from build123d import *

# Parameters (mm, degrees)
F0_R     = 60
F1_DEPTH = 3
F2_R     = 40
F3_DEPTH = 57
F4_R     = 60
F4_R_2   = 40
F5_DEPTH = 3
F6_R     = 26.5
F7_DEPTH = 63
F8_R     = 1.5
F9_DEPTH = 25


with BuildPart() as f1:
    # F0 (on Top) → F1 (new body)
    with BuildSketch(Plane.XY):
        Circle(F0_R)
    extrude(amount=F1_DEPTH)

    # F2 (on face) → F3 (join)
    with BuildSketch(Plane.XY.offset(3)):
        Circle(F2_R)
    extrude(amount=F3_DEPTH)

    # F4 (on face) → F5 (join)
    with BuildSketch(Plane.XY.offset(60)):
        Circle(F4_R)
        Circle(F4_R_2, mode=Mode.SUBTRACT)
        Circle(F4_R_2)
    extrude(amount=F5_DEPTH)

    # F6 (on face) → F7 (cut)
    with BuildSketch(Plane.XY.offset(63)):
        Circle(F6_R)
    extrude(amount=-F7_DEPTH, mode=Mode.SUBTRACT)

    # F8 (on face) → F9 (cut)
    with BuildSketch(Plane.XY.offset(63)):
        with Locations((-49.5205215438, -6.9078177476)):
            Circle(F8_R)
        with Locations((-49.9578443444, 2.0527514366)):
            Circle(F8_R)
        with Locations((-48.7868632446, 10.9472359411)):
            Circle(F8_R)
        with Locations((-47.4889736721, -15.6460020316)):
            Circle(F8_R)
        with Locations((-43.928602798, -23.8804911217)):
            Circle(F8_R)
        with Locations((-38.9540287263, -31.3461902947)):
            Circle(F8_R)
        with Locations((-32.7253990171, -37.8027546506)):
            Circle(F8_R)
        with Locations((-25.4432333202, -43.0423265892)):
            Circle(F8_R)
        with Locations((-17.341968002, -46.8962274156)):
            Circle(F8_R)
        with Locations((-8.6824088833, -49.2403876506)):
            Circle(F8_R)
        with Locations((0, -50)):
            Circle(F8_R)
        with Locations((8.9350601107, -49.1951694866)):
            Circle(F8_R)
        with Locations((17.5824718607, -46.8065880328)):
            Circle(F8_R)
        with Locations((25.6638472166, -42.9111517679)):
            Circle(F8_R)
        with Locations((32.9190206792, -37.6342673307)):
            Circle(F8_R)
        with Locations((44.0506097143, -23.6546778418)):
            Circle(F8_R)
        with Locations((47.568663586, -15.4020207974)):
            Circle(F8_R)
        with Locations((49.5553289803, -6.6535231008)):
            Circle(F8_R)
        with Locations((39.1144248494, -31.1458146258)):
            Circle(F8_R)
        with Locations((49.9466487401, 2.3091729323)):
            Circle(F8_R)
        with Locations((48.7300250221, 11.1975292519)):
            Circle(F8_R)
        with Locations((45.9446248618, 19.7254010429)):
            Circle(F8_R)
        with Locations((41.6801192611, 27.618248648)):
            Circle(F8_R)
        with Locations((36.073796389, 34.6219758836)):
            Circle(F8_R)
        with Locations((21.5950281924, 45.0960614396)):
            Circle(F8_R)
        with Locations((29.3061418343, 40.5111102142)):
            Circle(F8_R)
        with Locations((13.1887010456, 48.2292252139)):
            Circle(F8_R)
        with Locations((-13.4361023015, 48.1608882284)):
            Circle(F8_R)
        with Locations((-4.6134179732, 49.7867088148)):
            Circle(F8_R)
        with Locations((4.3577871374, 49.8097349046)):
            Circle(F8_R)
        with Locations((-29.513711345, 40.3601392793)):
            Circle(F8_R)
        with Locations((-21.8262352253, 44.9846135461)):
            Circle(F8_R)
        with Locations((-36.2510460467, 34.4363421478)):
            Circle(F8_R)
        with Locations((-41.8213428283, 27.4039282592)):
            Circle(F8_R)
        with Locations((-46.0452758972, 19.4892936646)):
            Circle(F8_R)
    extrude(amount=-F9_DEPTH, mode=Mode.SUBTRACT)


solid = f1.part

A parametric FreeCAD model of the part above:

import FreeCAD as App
import Part
import Sketcher

V = App.Vector

doc = App.newDocument("Part")
body = doc.addObject("PartDesign::Body", "Body")

# Sketch on XY plane
sketch1 = doc.addObject("Sketcher::SketchObject", "Sketch")
body.addObject(sketch1)
sketch1.AttachmentSupport = (doc.XY_Plane, [""])
sketch1.MapMode = "FlatFace"
sketch1.addGeometry(Part.Circle(V(0, 0, 0), V(0, 0, 1), 60), False)
sketch1.addConstraint(Sketcher.Constraint("Coincident", 0, 3, -1, 1))
sketch1.addConstraint(Sketcher.Constraint("Diameter", 0, 120.0))
pad1 = doc.addObject("PartDesign::Pad", "Pad")
body.addObject(pad1)
pad1.Profile = sketch1
pad1.Length = 3

# Sketch on XY plane
sketch2 = doc.addObject("Sketcher::SketchObject", "Sketch001")
body.addObject(sketch2)
sketch2.AttachmentSupport = (doc.XY_Plane, [""])
sketch2.MapMode = "FlatFace"
sketch2.AttachmentOffset = App.Placement(V(0, 0, 3), App.Rotation())
sketch2.addGeometry(Part.Circle(V(0, 0, 0), V(0, 0, 1), 40), False)
sketch2.addConstraint(Sketcher.Constraint("Coincident", 0, 3, -1, 1))
sketch2.addConstraint(Sketcher.Constraint("Diameter", 0, 80.0))
pad2 = doc.addObject("PartDesign::Pad", "Pad001")
body.addObject(pad2)
pad2.Profile = sketch2
pad2.Length = 57

# Sketch on XY plane
sketch3 = doc.addObject("Sketcher::SketchObject", "Sketch002")
body.addObject(sketch3)
sketch3.AttachmentSupport = (doc.XY_Plane, [""])
sketch3.MapMode = "FlatFace"
sketch3.AttachmentOffset = App.Placement(V(0, 0, 60), App.Rotation())
sketch3.addGeometry(Part.Circle(V(0, 0, 0), V(0, 0, 1), 60), False)
sketch3.addConstraint(Sketcher.Constraint("Coincident", 0, 3, -1, 1))
sketch3.addConstraint(Sketcher.Constraint("Diameter", 0, 120.0))
pad3 = doc.addObject("PartDesign::Pad", "Pad002")
body.addObject(pad3)
pad3.Profile = sketch3
pad3.Length = 3

# Sketch on XY plane
sketch4 = doc.addObject("Sketcher::SketchObject", "Sketch003")
body.addObject(sketch4)
sketch4.AttachmentSupport = (doc.XY_Plane, [""])
sketch4.MapMode = "FlatFace"
sketch4.AttachmentOffset = App.Placement(V(0, 0, 63), App.Rotation())
sketch4.addGeometry(Part.Circle(V(0, 0, 0), V(0, 0, 1), 26), False)
sketch4.addConstraint(Sketcher.Constraint("Coincident", 0, 3, -1, 1))
sketch4.addConstraint(Sketcher.Constraint("Diameter", 0, 53.0))
pocket1 = doc.addObject("PartDesign::Pocket", "Pocket")
body.addObject(pocket1)
pocket1.Profile = sketch4
pocket1.Length = 63

# Sketch on XY plane
sketch5 = doc.addObject("Sketcher::SketchObject", "Sketch004")
body.addObject(sketch5)
sketch5.AttachmentSupport = (doc.XY_Plane, [""])
sketch5.MapMode = "FlatFace"
sketch5.AttachmentOffset = App.Placement(V(0, 0, 63), App.Rotation())
sketch5.addGeometry(Part.Circle(V(-49.5, -6.9, 0), V(0, 0, 1), 1.5), False)
sketch5.addGeometry(Part.Circle(V(-50, 2.1, 0), V(0, 0, 1), 1.5), False)
sketch5.addGeometry(Part.Circle(V(-48.8, 10.9, 0), V(0, 0, 1), 1.5), False)
sketch5.addGeometry(Part.Circle(V(-47.5, -15.6, 0), V(0, 0, 1), 1.5), False)
sketch5.addGeometry(Part.Circle(V(-43.9, -23.9, 0), V(0, 0, 1), 1.5), False)
sketch5.addGeometry(Part.Circle(V(-39, -31.3, 0), V(0, 0, 1), 1.5), False)
sketch5.addGeometry(Part.Circle(V(-32.7, -37.8, 0), V(0, 0, 1), 1.5), False)
sketch5.addGeometry(Part.Circle(V(-25.4, -43, 0), V(0, 0, 1), 1.5), False)
sketch5.addGeometry(Part.Circle(V(-17.3, -46.9, 0), V(0, 0, 1), 1.5), False)
sketch5.addGeometry(Part.Circle(V(-8.7, -49.2, 0), V(0, 0, 1), 1.5), False)
sketch5.addGeometry(Part.Circle(V(0, -50, 0), V(0, 0, 1), 1.5), False)
sketch5.addGeometry(Part.Circle(V(8.9, -49.2, 0), V(0, 0, 1), 1.5), False)
sketch5.addGeometry(Part.Circle(V(17.6, -46.8, 0), V(0, 0, 1), 1.5), False)
sketch5.addGeometry(Part.Circle(V(25.7, -42.9, 0), V(0, 0, 1), 1.5), False)
sketch5.addGeometry(Part.Circle(V(32.9, -37.6, 0), V(0, 0, 1), 1.5), False)
sketch5.addGeometry(Part.Circle(V(44.1, -23.7, 0), V(0, 0, 1), 1.5), False)
sketch5.addGeometry(Part.Circle(V(47.6, -15.4, 0), V(0, 0, 1), 1.5), False)
sketch5.addGeometry(Part.Circle(V(49.6, -6.7, 0), V(0, 0, 1), 1.5), False)
sketch5.addGeometry(Part.Circle(V(39.1, -31.1, 0), V(0, 0, 1), 1.5), False)
sketch5.addGeometry(Part.Circle(V(49.9, 2.3, 0), V(0, 0, 1), 1.5), False)
sketch5.addGeometry(Part.Circle(V(48.7, 11.2, 0), V(0, 0, 1), 1.5), False)
sketch5.addGeometry(Part.Circle(V(45.9, 19.7, 0), V(0, 0, 1), 1.5), False)
sketch5.addGeometry(Part.Circle(V(41.7, 27.6, 0), V(0, 0, 1), 1.5), False)
sketch5.addGeometry(Part.Circle(V(36.1, 34.6, 0), V(0, 0, 1), 1.5), False)
sketch5.addGeometry(Part.Circle(V(21.6, 45.1, 0), V(0, 0, 1), 1.5), False)
sketch5.addGeometry(Part.Circle(V(29.3, 40.5, 0), V(0, 0, 1), 1.5), False)
sketch5.addGeometry(Part.Circle(V(13.2, 48.2, 0), V(0, 0, 1), 1.5), False)
sketch5.addGeometry(Part.Circle(V(-13.4, 48.2, 0), V(0, 0, 1), 1.5), False)
sketch5.addGeometry(Part.Circle(V(-4.6, 49.8, 0), V(0, 0, 1), 1.5), False)
sketch5.addGeometry(Part.Circle(V(4.4, 49.8, 0), V(0, 0, 1), 1.5), False)
sketch5.addGeometry(Part.Circle(V(-29.5, 40.4, 0), V(0, 0, 1), 1.5), False)
sketch5.addGeometry(Part.Circle(V(-21.8, 45, 0), V(0, 0, 1), 1.5), False)
sketch5.addGeometry(Part.Circle(V(-36.3, 34.4, 0), V(0, 0, 1), 1.5), False)
sketch5.addGeometry(Part.Circle(V(-41.8, 27.4, 0), V(0, 0, 1), 1.5), False)
sketch5.addGeometry(Part.Circle(V(-46, 19.5, 0), V(0, 0, 1), 1.5), False)
sketch5.addConstraint(Sketcher.Constraint("Equal", 0, 1))
sketch5.addConstraint(Sketcher.Constraint("Equal", 1, 2))
sketch5.addConstraint(Sketcher.Constraint("Equal", 2, 3))
sketch5.addConstraint(Sketcher.Constraint("Equal", 3, 4))
sketch5.addConstraint(Sketcher.Constraint("Equal", 4, 5))
sketch5.addConstraint(Sketcher.Constraint("Equal", 5, 6))
sketch5.addConstraint(Sketcher.Constraint("Equal", 6, 7))
sketch5.addConstraint(Sketcher.Constraint("Equal", 7, 8))
sketch5.addConstraint(Sketcher.Constraint("Equal", 8, 9))
sketch5.addConstraint(Sketcher.Constraint("Equal", 9, 10))
sketch5.addConstraint(Sketcher.Constraint("Equal", 10, 11))
sketch5.addConstraint(Sketcher.Constraint("Equal", 11, 12))
sketch5.addConstraint(Sketcher.Constraint("Equal", 12, 13))
sketch5.addConstraint(Sketcher.Constraint("Equal", 13, 14))
sketch5.addConstraint(Sketcher.Constraint("Equal", 14, 15))
sketch5.addConstraint(Sketcher.Constraint("Equal", 15, 16))
sketch5.addConstraint(Sketcher.Constraint("Equal", 16, 17))
sketch5.addConstraint(Sketcher.Constraint("Equal", 17, 18))
sketch5.addConstraint(Sketcher.Constraint("Equal", 18, 19))
sketch5.addConstraint(Sketcher.Constraint("Equal", 19, 20))
sketch5.addConstraint(Sketcher.Constraint("Equal", 20, 21))
sketch5.addConstraint(Sketcher.Constraint("Equal", 21, 22))
sketch5.addConstraint(Sketcher.Constraint("Equal", 22, 23))
sketch5.addConstraint(Sketcher.Constraint("Equal", 23, 24))
sketch5.addConstraint(Sketcher.Constraint("Equal", 24, 25))
sketch5.addConstraint(Sketcher.Constraint("Equal", 25, 26))
sketch5.addConstraint(Sketcher.Constraint("Equal", 26, 27))
sketch5.addConstraint(Sketcher.Constraint("Equal", 27, 28))
sketch5.addConstraint(Sketcher.Constraint("Equal", 28, 29))
sketch5.addConstraint(Sketcher.Constraint("Equal", 29, 30))
sketch5.addConstraint(Sketcher.Constraint("Equal", 30, 31))
sketch5.addConstraint(Sketcher.Constraint("Equal", 31, 32))
sketch5.addConstraint(Sketcher.Constraint("Equal", 32, 33))
sketch5.addConstraint(Sketcher.Constraint("Equal", 33, 34))
sketch5.addConstraint(Sketcher.Constraint("PointOnObject", 10, 3, -2))
sketch5.addConstraint(Sketcher.Constraint("Diameter", 0, 3.0))
sketch5.addConstraint(Sketcher.Constraint("DistanceY", 10, 3, -1, 1, 50.0))
sketch5.addConstraint(Sketcher.Constraint("DistanceX", 6, 3, -1, 1, 32.725399))
sketch5.addConstraint(Sketcher.Constraint("DistanceY", -1, 1, 21, 3, 19.725401))
sketch5.addConstraint(Sketcher.Constraint("DistanceX", -1, 1, 26, 3, 13.188701))
sketch5.addConstraint(Sketcher.Constraint("DistanceY", 5, 3, 4, 3, 7.465699))
sketch5.addConstraint(Sketcher.Constraint("DistanceY", 8, 3, 7, 3, 3.853901))
sketch5.addConstraint(Sketcher.Constraint("DistanceY", 9, 3, 12, 3, 2.4338))
sketch5.addConstraint(Sketcher.Constraint("DistanceX", 18, 3, 20, 3, 9.6156))
sketch5.addConstraint(Sketcher.Constraint("DistanceX", 21, 3, 20, 3, 2.7854))
sketch5.addConstraint(Sketcher.Constraint("DistanceY", 17, 3, 23, 3, 41.275499))
sketch5.addConstraint(Sketcher.Constraint("DistanceX", 27, 3, 23, 3, 49.509899))
sketch5.addConstraint(Sketcher.Constraint("DistanceY", 25, 3, 28, 3, 9.275599))
sketch5.addConstraint(Sketcher.Constraint("DistanceX", 30, 3, 29, 3, 33.871498))
sketch5.addConstraint(Sketcher.Constraint("DistanceX", 1, 3, 32, 3, 13.706798))
sketch5.addConstraint(Sketcher.Constraint("DistanceX", 1, 3, 33, 3, 8.136502))
sketch5.addConstraint(Sketcher.Constraint("DistanceX", 0, 3, -1, 1, 49.520522))
sketch5.addConstraint(Sketcher.Constraint("DistanceY", -1, 1, 1, 3, 2.052751))
sketch5.addConstraint(Sketcher.Constraint("DistanceY", 4, 3, -1, 1, 23.880491))
sketch5.addConstraint(Sketcher.Constraint("DistanceX", 5, 3, -1, 1, 38.954029))
sketch5.addConstraint(Sketcher.Constraint("DistanceX", 8, 3, -1, 1, 17.341968))
sketch5.addConstraint(Sketcher.Constraint("DistanceX", 9, 3, -1, 1, 8.682409))
sketch5.addConstraint(Sketcher.Constraint("DistanceX", -1, 1, 11, 3, 8.93506))
sketch5.addConstraint(Sketcher.Constraint("DistanceY", 11, 3, -1, 1, 49.195169))
sketch5.addConstraint(Sketcher.Constraint("DistanceX", -1, 1, 12, 3, 17.582472))
sketch5.addConstraint(Sketcher.Constraint("DistanceY", 12, 3, -1, 1, 46.806588))
sketch5.addConstraint(Sketcher.Constraint("DistanceY", 13, 3, -1, 1, 42.911152))
sketch5.addConstraint(Sketcher.Constraint("DistanceX", -1, 1, 14, 3, 32.919021))
sketch5.addConstraint(Sketcher.Constraint("DistanceX", -1, 1, 15, 3, 44.05061))
sketch5.addConstraint(Sketcher.Constraint("DistanceY", 16, 3, -1, 1, 15.402021))
sketch5.addConstraint(Sketcher.Constraint("DistanceX", -1, 1, 17, 3, 49.555329))
sketch5.addConstraint(Sketcher.Constraint("DistanceX", -1, 1, 19, 3, 49.946649))
sketch5.addConstraint(Sketcher.Constraint("DistanceY", -1, 1, 20, 3, 11.197529))
sketch5.addConstraint(Sketcher.Constraint("DistanceX", -1, 1, 22, 3, 41.680119))
sketch5.addConstraint(Sketcher.Constraint("DistanceY", -1, 1, 22, 3, 27.618249))
sketch5.addConstraint(Sketcher.Constraint("DistanceX", -1, 1, 24, 3, 21.595028))
sketch5.addConstraint(Sketcher.Constraint("DistanceY", -1, 1, 24, 3, 45.096061))
sketch5.addConstraint(Sketcher.Constraint("DistanceX", -1, 1, 25, 3, 29.306142))
sketch5.addConstraint(Sketcher.Constraint("DistanceY", -1, 1, 25, 3, 40.51111))
sketch5.addConstraint(Sketcher.Constraint("DistanceY", -1, 1, 27, 3, 48.160888))
sketch5.addConstraint(Sketcher.Constraint("DistanceX", 30, 3, -1, 1, 29.513711))
sketch5.addConstraint(Sketcher.Constraint("DistanceY", -1, 1, 30, 3, 40.360139))
sketch5.addConstraint(Sketcher.Constraint("DistanceY", -1, 1, 33, 3, 27.403928))
sketch5.addConstraint(Sketcher.Constraint("DistanceY", 0, 3, 1, 3, 8.960569))
sketch5.addConstraint(Sketcher.Constraint("DistanceX", 1, 3, 2, 3, 1.170981))
sketch5.addConstraint(Sketcher.Constraint("DistanceX", 0, 3, 2, 3, 0.733658))
sketch5.addConstraint(Sketcher.Constraint("DistanceX", 1, 3, 3, 3, 2.468871))
sketch5.addConstraint(Sketcher.Constraint("DistanceX", 3, 3, 4, 3, 3.560371))
sketch5.addConstraint(Sketcher.Constraint("DistanceY", 4, 3, 3, 3, 8.234489))
sketch5.addConstraint(Sketcher.Constraint("DistanceY", 7, 3, 6, 3, 5.239572))
sketch5.addConstraint(Sketcher.Constraint("DistanceX", 4, 3, 7, 3, 18.485369))
sketch5.addConstraint(Sketcher.Constraint("DistanceY", 7, 3, 0, 3, 36.134509))
sketch5.addConstraint(Sketcher.Constraint("DistanceY", 12, 3, 14, 3, 9.172321))
sketch5.addConstraint(Sketcher.Constraint("DistanceY", 14, 3, 15, 3, 13.979589))
sketch5.addConstraint(Sketcher.Constraint("DistanceX", 12, 3, 16, 3, 29.986192))
sketch5.addConstraint(Sketcher.Constraint("DistanceX", 13, 3, 17, 3, 23.891482))
sketch5.addConstraint(Sketcher.Constraint("DistanceY", 13, 3, 17, 3, 36.257629))
sketch5.addConstraint(Sketcher.Constraint("DistanceX", 18, 3, 16, 3, 8.454239))
sketch5.addConstraint(Sketcher.Constraint("DistanceY", 15, 3, 19, 3, 25.963851))
sketch5.addConstraint(Sketcher.Constraint("DistanceX", 23, 3, 21, 3, 9.870828))
sketch5.addConstraint(Sketcher.Constraint("DistanceY", 23, 3, 26, 3, 13.607249))
sketch5.addConstraint(Sketcher.Constraint("DistanceX", 28, 3, 26, 3, 17.802119))
sketch5.addConstraint(Sketcher.Constraint("DistanceY", 26, 3, 29, 3, 1.58051))
sketch5.addConstraint(Sketcher.Constraint("DistanceY", 31, 3, 29, 3, 4.825121))
sketch5.addConstraint(Sketcher.Constraint("DistanceX", 32, 3, 31, 3, 14.424811))
sketch5.addConstraint(Sketcher.Constraint("DistanceY", 32, 3, 31, 3, 10.548271))
sketch5.addConstraint(Sketcher.Constraint("DistanceX", 34, 3, 32, 3, 9.79423))
sketch5.addConstraint(Sketcher.Constraint("DistanceY", 34, 3, 32, 3, 14.947048))
sketch5.addConstraint(Sketcher.Constraint("DistanceY", -1, 1, 2, 3, 10.947236))
sketch5.addConstraint(Sketcher.Constraint("DistanceY", 18, 3, -1, 1, 31.145815))
pocket2 = doc.addObject("PartDesign::Pocket", "Pocket001")
body.addObject(pocket2)
pocket2.Profile = sketch5
pocket2.Length = 25

doc.recompute()
